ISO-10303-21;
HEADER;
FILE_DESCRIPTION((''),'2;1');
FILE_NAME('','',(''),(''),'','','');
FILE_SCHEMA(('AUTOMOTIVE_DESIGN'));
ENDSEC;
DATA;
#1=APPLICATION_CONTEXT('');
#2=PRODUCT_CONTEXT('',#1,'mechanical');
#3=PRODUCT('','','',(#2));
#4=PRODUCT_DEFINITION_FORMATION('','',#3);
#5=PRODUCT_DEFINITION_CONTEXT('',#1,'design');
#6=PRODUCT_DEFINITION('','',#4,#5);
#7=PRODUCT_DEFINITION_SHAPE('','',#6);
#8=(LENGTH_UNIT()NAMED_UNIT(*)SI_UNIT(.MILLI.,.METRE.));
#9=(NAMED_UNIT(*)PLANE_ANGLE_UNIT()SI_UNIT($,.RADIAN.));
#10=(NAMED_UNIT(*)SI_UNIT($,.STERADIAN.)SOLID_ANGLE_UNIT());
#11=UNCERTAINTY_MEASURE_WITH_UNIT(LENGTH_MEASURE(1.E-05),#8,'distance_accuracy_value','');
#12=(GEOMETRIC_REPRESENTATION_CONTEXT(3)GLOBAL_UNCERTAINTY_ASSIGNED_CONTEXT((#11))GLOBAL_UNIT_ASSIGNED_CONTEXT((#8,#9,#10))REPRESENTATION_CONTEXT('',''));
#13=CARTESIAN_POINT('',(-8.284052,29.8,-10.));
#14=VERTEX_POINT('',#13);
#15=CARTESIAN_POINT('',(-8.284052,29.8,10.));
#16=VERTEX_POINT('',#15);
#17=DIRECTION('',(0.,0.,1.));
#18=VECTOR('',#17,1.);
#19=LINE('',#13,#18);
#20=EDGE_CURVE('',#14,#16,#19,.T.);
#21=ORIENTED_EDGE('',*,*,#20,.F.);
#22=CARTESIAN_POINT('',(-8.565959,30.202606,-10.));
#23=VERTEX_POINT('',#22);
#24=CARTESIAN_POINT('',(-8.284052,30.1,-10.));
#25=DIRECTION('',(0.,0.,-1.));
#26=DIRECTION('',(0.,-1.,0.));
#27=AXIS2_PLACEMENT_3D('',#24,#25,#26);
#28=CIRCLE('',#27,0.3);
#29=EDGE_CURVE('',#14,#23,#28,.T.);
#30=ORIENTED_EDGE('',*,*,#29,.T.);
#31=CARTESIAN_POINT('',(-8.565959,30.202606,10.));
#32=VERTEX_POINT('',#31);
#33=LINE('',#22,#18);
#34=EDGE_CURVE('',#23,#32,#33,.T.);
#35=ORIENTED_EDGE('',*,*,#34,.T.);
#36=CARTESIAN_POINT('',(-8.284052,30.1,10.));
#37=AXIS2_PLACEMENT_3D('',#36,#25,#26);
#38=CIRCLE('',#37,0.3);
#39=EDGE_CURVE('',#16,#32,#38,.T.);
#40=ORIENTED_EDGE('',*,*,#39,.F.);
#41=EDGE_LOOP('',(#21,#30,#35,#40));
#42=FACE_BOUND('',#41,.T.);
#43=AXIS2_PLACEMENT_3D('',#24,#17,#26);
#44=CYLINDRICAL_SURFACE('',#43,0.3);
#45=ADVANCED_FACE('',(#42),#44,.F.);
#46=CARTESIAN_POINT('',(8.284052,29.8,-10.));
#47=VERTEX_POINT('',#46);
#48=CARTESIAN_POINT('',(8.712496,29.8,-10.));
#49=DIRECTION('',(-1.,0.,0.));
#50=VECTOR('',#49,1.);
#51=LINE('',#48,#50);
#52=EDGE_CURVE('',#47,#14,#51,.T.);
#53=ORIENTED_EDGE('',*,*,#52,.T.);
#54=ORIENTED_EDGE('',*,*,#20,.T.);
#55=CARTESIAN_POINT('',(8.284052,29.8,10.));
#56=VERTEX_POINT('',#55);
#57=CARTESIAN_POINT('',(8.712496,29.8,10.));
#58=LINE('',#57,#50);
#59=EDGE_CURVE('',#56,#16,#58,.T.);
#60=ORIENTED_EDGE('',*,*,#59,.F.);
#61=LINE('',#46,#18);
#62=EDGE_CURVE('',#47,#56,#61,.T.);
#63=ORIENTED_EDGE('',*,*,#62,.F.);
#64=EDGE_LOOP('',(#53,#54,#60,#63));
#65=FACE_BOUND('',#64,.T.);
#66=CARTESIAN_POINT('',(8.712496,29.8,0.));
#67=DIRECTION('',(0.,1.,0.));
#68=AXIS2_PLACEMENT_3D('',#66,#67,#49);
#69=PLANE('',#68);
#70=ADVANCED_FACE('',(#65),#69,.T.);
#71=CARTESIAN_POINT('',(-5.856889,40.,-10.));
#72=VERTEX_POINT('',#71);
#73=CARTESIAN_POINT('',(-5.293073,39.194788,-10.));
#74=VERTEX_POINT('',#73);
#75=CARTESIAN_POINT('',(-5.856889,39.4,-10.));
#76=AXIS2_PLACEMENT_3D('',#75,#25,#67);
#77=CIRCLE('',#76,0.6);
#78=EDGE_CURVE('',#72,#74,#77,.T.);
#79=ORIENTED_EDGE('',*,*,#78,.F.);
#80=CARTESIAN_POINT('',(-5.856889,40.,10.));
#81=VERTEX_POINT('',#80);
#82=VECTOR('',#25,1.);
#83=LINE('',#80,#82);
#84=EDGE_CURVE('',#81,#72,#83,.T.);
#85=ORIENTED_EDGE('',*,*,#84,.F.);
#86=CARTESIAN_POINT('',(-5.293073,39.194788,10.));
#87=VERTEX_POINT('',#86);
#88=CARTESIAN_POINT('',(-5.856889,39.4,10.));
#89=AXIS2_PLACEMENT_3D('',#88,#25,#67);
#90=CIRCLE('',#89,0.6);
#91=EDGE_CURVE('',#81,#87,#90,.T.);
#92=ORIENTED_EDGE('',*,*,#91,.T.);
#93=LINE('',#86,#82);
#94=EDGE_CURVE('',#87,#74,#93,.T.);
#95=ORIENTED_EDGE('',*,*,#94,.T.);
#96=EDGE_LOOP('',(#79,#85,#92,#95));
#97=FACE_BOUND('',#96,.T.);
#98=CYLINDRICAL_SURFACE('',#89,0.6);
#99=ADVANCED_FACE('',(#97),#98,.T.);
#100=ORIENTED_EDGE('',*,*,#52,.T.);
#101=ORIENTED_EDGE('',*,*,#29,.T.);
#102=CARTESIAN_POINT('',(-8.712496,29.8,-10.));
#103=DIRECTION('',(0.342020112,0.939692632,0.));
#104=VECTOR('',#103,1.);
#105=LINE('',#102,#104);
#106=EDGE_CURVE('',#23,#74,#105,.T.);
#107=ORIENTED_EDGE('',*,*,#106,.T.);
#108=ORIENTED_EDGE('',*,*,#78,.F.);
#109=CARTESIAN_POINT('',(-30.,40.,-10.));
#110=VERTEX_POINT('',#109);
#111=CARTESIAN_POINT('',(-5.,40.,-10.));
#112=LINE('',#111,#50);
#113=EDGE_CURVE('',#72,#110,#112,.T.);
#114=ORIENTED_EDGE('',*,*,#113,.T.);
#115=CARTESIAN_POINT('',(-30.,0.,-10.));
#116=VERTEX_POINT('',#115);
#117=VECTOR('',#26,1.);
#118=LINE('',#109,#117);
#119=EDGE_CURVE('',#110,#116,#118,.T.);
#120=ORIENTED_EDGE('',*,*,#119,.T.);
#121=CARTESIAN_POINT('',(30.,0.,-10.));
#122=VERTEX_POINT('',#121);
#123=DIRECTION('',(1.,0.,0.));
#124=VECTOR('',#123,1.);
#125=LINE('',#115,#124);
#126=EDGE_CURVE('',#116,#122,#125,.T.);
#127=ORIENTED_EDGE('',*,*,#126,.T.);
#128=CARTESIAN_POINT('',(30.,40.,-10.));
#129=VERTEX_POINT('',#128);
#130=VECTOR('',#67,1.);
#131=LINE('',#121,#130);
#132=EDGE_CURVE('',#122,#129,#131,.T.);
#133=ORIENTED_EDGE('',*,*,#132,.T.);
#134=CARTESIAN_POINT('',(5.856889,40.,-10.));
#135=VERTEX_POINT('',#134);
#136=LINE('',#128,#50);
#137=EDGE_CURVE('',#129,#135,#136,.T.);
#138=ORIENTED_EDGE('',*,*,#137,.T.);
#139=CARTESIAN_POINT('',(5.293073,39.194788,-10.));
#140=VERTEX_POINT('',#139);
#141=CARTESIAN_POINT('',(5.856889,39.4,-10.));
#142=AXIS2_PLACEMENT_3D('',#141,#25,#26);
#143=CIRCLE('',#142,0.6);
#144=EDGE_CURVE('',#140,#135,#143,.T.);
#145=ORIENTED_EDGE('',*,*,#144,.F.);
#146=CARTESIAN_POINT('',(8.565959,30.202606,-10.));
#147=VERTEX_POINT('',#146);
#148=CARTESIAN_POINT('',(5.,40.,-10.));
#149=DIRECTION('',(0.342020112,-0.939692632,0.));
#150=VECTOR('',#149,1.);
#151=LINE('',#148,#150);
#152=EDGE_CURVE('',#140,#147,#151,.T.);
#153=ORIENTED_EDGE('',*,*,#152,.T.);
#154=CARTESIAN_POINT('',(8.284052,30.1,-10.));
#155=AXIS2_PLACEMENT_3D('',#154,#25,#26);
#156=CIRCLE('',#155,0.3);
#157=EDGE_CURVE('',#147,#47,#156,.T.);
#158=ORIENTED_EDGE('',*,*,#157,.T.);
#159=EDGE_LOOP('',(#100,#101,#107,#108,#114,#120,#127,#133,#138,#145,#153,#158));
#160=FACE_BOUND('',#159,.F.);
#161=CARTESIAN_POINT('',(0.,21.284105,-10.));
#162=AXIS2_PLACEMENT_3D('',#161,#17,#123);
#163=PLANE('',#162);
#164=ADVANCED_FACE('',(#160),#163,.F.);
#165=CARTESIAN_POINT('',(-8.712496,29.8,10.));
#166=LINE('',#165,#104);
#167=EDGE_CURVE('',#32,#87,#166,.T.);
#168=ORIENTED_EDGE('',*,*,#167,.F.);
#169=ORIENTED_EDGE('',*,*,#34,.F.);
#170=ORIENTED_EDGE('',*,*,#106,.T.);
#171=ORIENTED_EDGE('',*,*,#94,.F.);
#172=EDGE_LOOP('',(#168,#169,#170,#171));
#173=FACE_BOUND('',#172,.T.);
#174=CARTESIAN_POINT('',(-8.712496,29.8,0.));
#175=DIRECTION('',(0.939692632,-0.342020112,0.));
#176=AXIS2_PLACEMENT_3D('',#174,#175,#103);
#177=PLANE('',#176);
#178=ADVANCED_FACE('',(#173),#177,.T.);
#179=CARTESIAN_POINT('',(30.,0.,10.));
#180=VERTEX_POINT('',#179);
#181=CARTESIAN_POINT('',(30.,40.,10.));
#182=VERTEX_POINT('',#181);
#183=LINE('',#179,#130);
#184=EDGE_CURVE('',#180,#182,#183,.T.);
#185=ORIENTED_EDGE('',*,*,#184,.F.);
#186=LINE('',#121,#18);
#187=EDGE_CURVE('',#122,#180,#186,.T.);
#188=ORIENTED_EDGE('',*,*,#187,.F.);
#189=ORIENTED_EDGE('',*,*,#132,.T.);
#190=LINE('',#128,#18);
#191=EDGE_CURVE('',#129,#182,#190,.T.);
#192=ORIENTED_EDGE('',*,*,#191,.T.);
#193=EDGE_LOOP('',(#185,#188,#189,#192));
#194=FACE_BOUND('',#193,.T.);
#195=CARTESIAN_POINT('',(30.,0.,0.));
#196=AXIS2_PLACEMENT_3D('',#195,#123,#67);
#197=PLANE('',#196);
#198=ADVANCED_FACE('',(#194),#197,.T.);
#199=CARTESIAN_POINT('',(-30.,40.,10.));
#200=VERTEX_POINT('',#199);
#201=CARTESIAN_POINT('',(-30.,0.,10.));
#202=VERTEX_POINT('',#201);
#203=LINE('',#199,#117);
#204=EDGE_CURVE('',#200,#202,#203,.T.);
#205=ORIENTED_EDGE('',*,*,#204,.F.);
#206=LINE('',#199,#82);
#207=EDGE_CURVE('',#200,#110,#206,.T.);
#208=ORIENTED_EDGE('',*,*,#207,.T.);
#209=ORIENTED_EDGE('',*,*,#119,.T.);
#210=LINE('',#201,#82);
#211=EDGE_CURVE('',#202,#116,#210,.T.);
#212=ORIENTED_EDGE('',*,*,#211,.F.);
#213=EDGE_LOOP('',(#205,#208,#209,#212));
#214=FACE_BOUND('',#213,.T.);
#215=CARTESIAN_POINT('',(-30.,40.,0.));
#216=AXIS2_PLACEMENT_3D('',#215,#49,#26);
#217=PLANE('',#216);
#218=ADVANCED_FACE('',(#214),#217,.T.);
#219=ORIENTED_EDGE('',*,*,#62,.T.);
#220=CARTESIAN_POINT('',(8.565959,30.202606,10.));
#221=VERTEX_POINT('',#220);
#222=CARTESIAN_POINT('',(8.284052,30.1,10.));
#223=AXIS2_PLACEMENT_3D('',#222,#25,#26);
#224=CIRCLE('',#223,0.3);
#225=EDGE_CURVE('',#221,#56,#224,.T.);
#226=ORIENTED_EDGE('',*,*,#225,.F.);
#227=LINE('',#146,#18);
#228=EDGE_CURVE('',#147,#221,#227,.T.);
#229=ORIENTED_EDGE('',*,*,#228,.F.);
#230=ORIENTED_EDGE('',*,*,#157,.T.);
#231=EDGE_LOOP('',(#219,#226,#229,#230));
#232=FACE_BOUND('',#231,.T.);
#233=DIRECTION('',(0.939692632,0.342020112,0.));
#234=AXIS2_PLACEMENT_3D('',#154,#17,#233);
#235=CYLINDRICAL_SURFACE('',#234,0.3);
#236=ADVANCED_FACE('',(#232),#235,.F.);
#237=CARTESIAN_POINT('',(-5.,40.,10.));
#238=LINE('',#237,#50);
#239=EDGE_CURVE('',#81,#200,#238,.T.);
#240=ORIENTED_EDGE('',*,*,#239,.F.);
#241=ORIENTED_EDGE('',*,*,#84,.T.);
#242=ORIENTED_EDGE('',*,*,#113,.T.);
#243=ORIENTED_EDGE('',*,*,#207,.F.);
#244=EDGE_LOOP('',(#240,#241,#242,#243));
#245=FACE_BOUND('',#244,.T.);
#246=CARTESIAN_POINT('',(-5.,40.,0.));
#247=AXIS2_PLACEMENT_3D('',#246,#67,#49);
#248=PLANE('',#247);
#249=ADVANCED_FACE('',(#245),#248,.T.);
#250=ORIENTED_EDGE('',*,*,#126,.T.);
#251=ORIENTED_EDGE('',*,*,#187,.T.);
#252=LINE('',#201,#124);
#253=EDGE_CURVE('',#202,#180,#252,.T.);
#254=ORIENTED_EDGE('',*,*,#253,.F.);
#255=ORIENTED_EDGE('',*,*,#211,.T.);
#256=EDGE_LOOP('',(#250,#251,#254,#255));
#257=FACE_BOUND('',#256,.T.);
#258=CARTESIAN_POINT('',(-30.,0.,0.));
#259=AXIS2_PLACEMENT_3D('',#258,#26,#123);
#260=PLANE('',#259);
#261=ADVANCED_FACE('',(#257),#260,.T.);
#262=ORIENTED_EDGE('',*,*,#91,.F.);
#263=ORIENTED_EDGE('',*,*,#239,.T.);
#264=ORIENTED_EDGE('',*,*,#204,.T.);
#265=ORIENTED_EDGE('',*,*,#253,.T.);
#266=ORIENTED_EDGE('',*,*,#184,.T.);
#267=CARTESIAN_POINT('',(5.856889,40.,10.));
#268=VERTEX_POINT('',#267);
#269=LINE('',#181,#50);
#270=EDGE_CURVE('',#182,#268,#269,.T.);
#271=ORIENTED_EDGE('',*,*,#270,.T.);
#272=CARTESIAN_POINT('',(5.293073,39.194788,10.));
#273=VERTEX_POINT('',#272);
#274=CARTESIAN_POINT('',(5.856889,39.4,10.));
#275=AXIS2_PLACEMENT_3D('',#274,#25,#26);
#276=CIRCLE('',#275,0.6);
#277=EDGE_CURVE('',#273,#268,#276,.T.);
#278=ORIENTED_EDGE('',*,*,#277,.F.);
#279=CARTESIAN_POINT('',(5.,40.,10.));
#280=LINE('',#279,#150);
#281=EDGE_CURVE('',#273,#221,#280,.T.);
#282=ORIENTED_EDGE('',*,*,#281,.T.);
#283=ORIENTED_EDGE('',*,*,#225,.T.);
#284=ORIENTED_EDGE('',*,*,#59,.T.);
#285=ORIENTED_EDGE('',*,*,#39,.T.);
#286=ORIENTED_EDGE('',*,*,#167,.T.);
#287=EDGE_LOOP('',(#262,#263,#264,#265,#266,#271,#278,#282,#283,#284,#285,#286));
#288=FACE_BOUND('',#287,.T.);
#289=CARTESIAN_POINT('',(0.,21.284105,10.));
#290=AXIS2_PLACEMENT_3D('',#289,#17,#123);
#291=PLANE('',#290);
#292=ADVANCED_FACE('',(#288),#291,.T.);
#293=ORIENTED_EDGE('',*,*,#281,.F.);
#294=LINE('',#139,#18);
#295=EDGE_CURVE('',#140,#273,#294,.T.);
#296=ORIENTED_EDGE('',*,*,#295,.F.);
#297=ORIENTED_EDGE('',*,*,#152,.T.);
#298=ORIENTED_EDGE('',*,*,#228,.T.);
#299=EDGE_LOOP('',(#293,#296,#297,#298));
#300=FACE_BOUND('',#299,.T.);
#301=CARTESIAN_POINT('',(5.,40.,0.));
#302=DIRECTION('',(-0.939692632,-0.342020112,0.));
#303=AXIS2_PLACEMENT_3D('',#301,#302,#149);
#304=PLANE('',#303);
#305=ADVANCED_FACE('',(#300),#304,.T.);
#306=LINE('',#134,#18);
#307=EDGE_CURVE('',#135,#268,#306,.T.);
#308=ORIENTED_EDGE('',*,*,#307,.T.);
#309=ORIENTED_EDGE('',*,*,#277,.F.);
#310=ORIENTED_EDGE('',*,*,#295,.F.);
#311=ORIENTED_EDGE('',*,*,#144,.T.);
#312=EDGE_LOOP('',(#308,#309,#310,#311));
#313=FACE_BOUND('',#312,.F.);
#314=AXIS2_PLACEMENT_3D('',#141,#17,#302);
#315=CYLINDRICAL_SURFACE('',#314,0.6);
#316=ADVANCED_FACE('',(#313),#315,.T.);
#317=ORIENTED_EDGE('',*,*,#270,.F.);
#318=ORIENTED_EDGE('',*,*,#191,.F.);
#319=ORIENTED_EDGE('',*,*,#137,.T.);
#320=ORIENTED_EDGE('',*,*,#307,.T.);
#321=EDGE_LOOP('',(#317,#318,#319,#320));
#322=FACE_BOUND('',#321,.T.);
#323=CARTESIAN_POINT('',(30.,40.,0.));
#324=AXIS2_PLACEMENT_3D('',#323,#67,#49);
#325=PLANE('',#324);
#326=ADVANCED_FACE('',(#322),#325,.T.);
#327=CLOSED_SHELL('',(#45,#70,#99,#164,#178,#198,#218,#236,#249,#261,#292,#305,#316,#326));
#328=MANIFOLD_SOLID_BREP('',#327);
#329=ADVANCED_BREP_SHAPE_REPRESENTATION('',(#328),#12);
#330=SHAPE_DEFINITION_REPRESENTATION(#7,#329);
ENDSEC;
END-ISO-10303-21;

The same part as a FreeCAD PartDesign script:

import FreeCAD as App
import Part
import Sketcher
Q = App.Units.Quantity


def edges_at(feature, points):
    """Names of the edges that pass closest to the given points."""
    edges = feature.Shape.Edges
    near = lambda p: min(range(len(edges)), key=lambda i: edges[i].distToShape(Part.Vertex(*p))[0])
    return sorted({f"Edge{near(p) + 1}" for p in points})


def add_polygon(sketch, points):
    """Adds a closed chain of lines whose ends are joined by coincident constraints."""
    first, n = sketch.GeometryCount, len(points)
    for a, b in zip(points, points[1:] + points[:1]):
        sketch.addGeometry(Part.LineSegment(App.Vector(*a, 0), App.Vector(*b, 0)), False)
    for i in range(n):
        sketch.addConstraint(Sketcher.Constraint("Coincident", first + i, 2, first + (i + 1) % n, 1))

doc = App.newDocument("Part")
body = doc.addObject("PartDesign::Body", "Body")

sketch1 = body.newObject("Sketcher::SketchObject", "Sketch")
sketch1.AttachmentSupport = (doc.getObject("XY_Plane"), [""])
sketch1.MapMode = "FlatFace"
add_polygon(sketch1, [(-30, 0), (30, 0), (30, 40), (5, 40), (8.712496, 29.8), (-8.712496, 29.8), (-5, 40), (-30, 40)])
sketch1.addConstraint([
    Sketcher.Constraint("Horizontal", 0),
    Sketcher.Constraint("Vertical", 1),
    Sketcher.Constraint("Horizontal", 2),
    Sketcher.Constraint("Horizontal", 4),
    Sketcher.Constraint("Horizontal", 6),
    Sketcher.Constraint("Vertical", 7),
    Sketcher.Constraint("Symmetric", 0, 2, 7, 2, -1, 1),
    Sketcher.Constraint("Symmetric", 2, 2, 5, 2, -2),
    Sketcher.Constraint("Equal", 3, 5),
    Sketcher.Constraint("DistanceX", 0, 1, 0, 2, Q("60 mm")),
    Sketcher.Constraint("DistanceX", 2, 2, 2, 1, Q("25 mm")),
    Sketcher.Constraint("DistanceY", 1, 1, 1, 2, Q("40 mm")),
    Sketcher.Constraint("Angle", 3, Q("-70.000002 deg")),
    Sketcher.Constraint("DistanceY", -1, 1, 3, 2, Q("29.8 mm")),
])
pad1 = body.newObject("PartDesign::Pad", "Pad")
pad1.Profile = sketch1
pad1.Length = 20
pad1.Midplane = True
doc.recompute()

fillet = body.newObject("PartDesign::Fillet", "Fillet")
fillet.Base = (pad1, edges_at(pad1, [(-5, 40, 0), (5, 40, 0)]))
fillet.Radius = 0.6
doc.recompute()

fillet2 = body.newObject("PartDesign::Fillet", "Fillet001")
fillet2.Base = (fillet, edges_at(fillet, [(-8.712, 29.8, 0), (8.712, 29.8, 0)]))
fillet2.Radius = 0.3

doc.recompute()
